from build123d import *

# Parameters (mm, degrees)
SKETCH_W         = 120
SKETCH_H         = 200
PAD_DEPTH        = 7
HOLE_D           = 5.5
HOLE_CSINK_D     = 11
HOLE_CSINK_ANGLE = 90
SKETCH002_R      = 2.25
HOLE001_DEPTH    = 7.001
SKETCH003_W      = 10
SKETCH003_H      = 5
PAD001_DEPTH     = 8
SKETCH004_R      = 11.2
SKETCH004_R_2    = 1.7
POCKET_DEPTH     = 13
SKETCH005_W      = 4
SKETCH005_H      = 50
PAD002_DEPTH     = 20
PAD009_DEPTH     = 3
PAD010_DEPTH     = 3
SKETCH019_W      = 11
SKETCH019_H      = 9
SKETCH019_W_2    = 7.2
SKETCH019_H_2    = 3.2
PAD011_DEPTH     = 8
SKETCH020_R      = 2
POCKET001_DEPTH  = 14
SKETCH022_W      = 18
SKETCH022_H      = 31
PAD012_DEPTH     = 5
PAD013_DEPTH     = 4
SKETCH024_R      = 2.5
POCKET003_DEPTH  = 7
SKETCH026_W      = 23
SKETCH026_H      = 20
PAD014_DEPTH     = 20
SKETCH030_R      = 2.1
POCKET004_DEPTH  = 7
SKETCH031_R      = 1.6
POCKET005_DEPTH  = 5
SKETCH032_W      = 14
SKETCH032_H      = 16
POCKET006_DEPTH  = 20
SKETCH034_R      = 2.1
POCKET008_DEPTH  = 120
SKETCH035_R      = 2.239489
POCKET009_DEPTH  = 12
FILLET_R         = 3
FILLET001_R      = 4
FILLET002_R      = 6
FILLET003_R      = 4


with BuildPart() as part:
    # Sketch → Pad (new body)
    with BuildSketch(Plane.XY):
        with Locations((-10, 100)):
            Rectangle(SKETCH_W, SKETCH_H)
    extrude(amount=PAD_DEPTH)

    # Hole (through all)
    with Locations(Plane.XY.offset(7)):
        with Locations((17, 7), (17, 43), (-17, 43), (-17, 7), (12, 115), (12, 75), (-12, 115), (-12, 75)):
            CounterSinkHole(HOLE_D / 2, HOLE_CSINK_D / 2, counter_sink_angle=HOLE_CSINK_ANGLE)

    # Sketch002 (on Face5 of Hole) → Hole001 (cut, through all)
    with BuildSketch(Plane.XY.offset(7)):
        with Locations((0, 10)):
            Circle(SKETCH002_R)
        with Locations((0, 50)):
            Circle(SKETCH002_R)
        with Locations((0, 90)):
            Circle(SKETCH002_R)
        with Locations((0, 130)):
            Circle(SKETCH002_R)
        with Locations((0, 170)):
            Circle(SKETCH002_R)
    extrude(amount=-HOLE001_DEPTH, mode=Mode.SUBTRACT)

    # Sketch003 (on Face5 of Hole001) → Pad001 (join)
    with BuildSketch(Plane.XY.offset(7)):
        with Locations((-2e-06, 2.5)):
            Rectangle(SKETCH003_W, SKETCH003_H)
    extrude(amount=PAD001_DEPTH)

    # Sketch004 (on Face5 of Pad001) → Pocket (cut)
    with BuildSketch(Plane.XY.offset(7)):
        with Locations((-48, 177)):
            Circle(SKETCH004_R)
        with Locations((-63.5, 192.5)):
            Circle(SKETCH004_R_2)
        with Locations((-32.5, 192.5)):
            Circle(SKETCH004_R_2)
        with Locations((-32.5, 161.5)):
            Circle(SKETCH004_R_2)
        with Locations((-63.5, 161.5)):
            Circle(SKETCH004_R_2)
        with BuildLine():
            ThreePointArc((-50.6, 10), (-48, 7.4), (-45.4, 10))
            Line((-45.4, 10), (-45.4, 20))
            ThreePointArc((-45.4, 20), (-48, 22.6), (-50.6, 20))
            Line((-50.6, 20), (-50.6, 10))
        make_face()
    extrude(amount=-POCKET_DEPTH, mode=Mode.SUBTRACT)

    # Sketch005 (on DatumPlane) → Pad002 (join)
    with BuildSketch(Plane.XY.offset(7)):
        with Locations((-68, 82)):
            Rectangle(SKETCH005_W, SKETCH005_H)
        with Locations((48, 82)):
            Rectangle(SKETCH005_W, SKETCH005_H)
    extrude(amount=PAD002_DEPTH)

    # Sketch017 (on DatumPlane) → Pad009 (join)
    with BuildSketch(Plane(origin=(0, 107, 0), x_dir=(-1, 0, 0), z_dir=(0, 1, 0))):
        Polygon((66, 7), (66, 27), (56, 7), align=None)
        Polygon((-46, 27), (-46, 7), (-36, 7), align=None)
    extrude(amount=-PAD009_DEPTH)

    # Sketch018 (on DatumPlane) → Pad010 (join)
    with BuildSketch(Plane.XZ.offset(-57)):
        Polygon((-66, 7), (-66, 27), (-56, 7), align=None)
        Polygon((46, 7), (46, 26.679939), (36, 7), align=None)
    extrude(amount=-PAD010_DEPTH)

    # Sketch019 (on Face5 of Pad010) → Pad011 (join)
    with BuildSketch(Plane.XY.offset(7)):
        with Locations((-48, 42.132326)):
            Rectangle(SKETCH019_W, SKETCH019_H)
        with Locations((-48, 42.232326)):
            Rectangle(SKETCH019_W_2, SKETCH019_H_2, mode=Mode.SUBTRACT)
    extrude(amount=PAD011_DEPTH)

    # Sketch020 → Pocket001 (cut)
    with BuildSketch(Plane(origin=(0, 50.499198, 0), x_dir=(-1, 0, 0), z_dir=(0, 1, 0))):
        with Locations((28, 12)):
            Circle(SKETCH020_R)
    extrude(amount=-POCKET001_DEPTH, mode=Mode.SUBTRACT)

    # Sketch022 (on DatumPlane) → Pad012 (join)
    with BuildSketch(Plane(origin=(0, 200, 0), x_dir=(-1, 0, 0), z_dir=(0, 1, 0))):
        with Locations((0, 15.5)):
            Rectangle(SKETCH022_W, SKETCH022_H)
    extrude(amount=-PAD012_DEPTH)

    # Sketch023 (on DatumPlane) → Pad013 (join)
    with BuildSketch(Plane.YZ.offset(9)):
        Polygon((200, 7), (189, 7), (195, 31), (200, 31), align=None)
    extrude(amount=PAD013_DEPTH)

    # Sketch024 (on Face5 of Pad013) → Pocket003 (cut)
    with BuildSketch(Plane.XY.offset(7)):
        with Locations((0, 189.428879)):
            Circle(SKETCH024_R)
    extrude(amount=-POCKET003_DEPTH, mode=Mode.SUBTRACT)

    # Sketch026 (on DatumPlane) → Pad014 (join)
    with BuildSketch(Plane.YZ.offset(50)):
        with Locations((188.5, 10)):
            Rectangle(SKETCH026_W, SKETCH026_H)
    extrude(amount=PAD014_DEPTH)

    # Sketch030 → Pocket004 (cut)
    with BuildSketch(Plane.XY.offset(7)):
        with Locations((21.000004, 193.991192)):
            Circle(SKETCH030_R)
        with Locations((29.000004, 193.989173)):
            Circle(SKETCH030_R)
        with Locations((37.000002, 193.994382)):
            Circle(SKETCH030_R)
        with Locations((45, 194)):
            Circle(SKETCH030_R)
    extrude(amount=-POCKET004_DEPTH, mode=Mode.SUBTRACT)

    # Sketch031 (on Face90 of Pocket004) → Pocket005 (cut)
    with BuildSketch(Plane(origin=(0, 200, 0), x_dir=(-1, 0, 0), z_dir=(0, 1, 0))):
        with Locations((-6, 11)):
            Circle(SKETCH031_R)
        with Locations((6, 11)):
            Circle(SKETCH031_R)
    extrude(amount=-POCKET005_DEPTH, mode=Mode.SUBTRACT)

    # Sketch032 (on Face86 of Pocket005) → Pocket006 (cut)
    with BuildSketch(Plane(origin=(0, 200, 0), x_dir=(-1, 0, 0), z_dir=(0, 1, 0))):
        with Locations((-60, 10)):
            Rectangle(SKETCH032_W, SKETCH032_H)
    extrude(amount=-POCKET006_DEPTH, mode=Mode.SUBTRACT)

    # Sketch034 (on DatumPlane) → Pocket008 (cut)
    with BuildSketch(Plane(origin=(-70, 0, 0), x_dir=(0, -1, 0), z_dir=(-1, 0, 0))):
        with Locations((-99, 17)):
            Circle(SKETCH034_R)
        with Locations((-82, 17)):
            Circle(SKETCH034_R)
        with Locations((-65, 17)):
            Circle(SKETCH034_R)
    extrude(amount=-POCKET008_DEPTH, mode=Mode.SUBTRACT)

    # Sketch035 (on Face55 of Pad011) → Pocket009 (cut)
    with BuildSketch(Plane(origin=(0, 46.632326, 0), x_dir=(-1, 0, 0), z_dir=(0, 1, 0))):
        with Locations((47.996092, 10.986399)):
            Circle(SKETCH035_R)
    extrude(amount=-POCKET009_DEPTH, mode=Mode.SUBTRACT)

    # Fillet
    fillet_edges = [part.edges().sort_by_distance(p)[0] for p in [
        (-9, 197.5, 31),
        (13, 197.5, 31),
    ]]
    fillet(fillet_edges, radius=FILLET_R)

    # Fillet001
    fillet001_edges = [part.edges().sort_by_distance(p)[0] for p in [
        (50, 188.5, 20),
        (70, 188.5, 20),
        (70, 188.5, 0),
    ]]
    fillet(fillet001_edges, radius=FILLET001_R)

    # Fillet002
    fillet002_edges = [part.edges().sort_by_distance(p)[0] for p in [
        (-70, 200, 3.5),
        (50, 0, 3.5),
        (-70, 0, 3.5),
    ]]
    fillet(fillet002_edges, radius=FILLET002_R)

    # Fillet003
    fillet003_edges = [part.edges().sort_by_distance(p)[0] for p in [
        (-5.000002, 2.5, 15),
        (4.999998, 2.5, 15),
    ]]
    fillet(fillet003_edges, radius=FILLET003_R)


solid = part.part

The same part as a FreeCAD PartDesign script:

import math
import FreeCAD as App
import Part
import Sketcher

V = App.Vector
Q = App.Units.Quantity


def edges_at(feature, points):
    """Names of the edges that pass closest to the given points."""
    edges = feature.Shape.Edges
    near = lambda p: min(range(len(edges)), key=lambda i: edges[i].distToShape(Part.Vertex(*p))[0])
    return sorted({f"Edge{near(p) + 1}" for p in points})

doc = App.newDocument("Part")
body = doc.addObject("PartDesign::Body", "Body")

# Sketch on XY plane
sketch1 = doc.addObject("Sketcher::SketchObject", "Sketch")
body.addObject(sketch1)
sketch1.AttachmentSupport = (doc.XY_Plane, [""])
sketch1.MapMode = "FlatFace"
sketch1.addGeometry(Part.LineSegment(V(-70, 200, 0), V(-70, 0, 0)), False)
sketch1.addGeometry(Part.LineSegment(V(-70, 0, 0), V(50, 0, 0)), False)
sketch1.addGeometry(Part.LineSegment(V(50, 0, 0), V(50, 200, 0)), False)
sketch1.addGeometry(Part.LineSegment(V(50, 200, 0), V(-70, 200, 0)), False)
sketch1.addConstraint(Sketcher.Constraint("Coincident", 0, 2, 1, 1))
sketch1.addConstraint(Sketcher.Constraint("Coincident", 1, 2, 2, 1))
sketch1.addConstraint(Sketcher.Constraint("Coincident", 2, 2, 3, 1))
sketch1.addConstraint(Sketcher.Constraint("Coincident", 3, 2, 0, 1))
sketch1.addConstraint(Sketcher.Constraint("Vertical", 0))
sketch1.addConstraint(Sketcher.Constraint("Horizontal", 1))
sketch1.addConstraint(Sketcher.Constraint("Vertical", 2))
sketch1.addConstraint(Sketcher.Constraint("Horizontal", 3))
sketch1.addConstraint(Sketcher.Constraint("PointOnObject", 0, 2, -1))
sketch1.addConstraint(Sketcher.Constraint("DistanceX", 1, 1, 1, 2, Q("120 mm")))
sketch1.addConstraint(Sketcher.Constraint("DistanceY", 0, 2, 0, 1, Q("200 mm")))
sketch1.addConstraint(Sketcher.Constraint("DistanceX", 0, 2, -1, 1, Q("70 mm")))
pad1 = doc.addObject("PartDesign::Pad", "Pad")
body.addObject(pad1)
pad1.Profile = sketch1
pad1.Length = 7

# Sketch on XY plane
sketch2 = doc.addObject("Sketcher::SketchObject", "Sketch001")
body.addObject(sketch2)
sketch2.AttachmentSupport = (doc.XY_Plane, [""])
sketch2.MapMode = "FlatFace"
sketch2.AttachmentOffset = App.Placement(V(0, 0, 7), App.Rotation())
sketch2.addGeometry(Part.Circle(V(17, 7, 0), V(0, 0, 1), 2.75), False)
sketch2.addGeometry(Part.Circle(V(17, 43, 0), V(0, 0, 1), 2.75), False)
sketch2.addGeometry(Part.Circle(V(-17, 43, 0), V(0, 0, 1), 2.75), False)
sketch2.addGeometry(Part.Circle(V(-17, 7, 0), V(0, 0, 1), 2.75), False)
sketch2.addGeometry(Part.Circle(V(12, 115, 0), V(0, 0, 1), 2.75), False)
sketch2.addGeometry(Part.Circle(V(12, 75, 0), V(0, 0, 1), 2.75), False)
sketch2.addGeometry(Part.Circle(V(-12, 115, 0), V(0, 0, 1), 2.75), False)
sketch2.addGeometry(Part.Circle(V(-12, 75, 0), V(0, 0, 1), 2.75), False)
sketch2.addConstraint(Sketcher.Constraint("Equal", 0, 1))
sketch2.addConstraint(Sketcher.Constraint("Equal", 1, 2))
sketch2.addConstraint(Sketcher.Constraint("Equal", 2, 3))
sketch2.addConstraint(Sketcher.Constraint("Equal", 3, 4))
sketch2.addConstraint(Sketcher.Constraint("Equal", 4, 5))
sketch2.addConstraint(Sketcher.Constraint("Equal", 5, 6))
sketch2.addConstraint(Sketcher.Constraint("Equal", 6, 7))
sketch2.addConstraint(Sketcher.Constraint("Symmetric", 1, 3, 2, 3, -2))
sketch2.addConstraint(Sketcher.Constraint("Symmetric", 0, 3, 3, 3, -2))
sketch2.addConstraint(Sketcher.Constraint("Symmetric", 4, 3, 6, 3, -2))
sketch2.addConstraint(Sketcher.Constraint("Symmetric", 5, 3, 7, 3, -2))
sketch2.addConstraint(Sketcher.Constraint("Vertical", 0, 3, 1, 3))
sketch2.addConstraint(Sketcher.Constraint("Vertical", 4, 3, 5, 3))
sketch2.addConstraint(Sketcher.Constraint("Diameter", 0, Q("5.5 mm")))
sketch2.addConstraint(Sketcher.Constraint("DistanceX", -1, 1, 0, 3, Q("17 mm")))
sketch2.addConstraint(Sketcher.Constraint("DistanceY", -1, 1, 0, 3, Q("7 mm")))
sketch2.addConstraint(Sketcher.Constraint("DistanceY", -1, 1, 1, 3, Q("43 mm")))
sketch2.addConstraint(Sketcher.Constraint("DistanceX", -1, 1, 4, 3, Q("12 mm")))
sketch2.addConstraint(Sketcher.Constraint("DistanceY", -1, 1, 4, 3, Q("115 mm")))
sketch2.addConstraint(Sketcher.Constraint("DistanceY", -1, 1, 5, 3, Q("75 mm")))
doc.recompute()
hole = doc.addObject("PartDesign::Hole", "Hole")
body.addObject(hole)
hole.Profile = sketch2
hole.ThreadType = "None"
hole.Diameter = 5.5
hole.DepthType = "ThroughAll"
hole.HoleCutType = "Countersink"
hole.HoleCutDiameter = 11
hole.HoleCutCountersinkAngle = 90

# Sketch on XY plane
sketch3 = doc.addObject("Sketcher::SketchObject", "Sketch002")
body.addObject(sketch3)
sketch3.AttachmentSupport = (doc.XY_Plane, [""])
sketch3.MapMode = "FlatFace"
sketch3.AttachmentOffset = App.Placement(V(0, 0, 7), App.Rotation())
sketch3.addGeometry(Part.Circle(V(0, 10, 0), V(0, 0, 1), 2.25), False)
sketch3.addGeometry(Part.Circle(V(0, 50, 0), V(0, 0, 1), 2.25), False)
sketch3.addGeometry(Part.Circle(V(0, 90, 0), V(0, 0, 1), 2.25), False)
sketch3.addGeometry(Part.Circle(V(0, 130, 0), V(0, 0, 1), 2.25), False)
sketch3.addGeometry(Part.Circle(V(0, 170, 0), V(0, 0, 1), 2.25), False)
sketch3.addConstraint(Sketcher.Constraint("Equal", 0, 1))
sketch3.addConstraint(Sketcher.Constraint("Equal", 1, 2))
sketch3.addConstraint(Sketcher.Constraint("Equal", 2, 3))
sketch3.addConstraint(Sketcher.Constraint("Equal", 3, 4))
sketch3.addConstraint(Sketcher.Constraint("PointOnObject", 0, 3, -2))
sketch3.addConstraint(Sketcher.Constraint("PointOnObject", 1, 3, -2))
sketch3.addConstraint(Sketcher.Constraint("PointOnObject", 2, 3, -2))
sketch3.addConstraint(Sketcher.Constraint("PointOnObject", 3, 3, -2))
sketch3.addConstraint(Sketcher.Constraint("PointOnObject", 4, 3, -2))
sketch3.addConstraint(Sketcher.Constraint("Diameter", 0, Q("4.5 mm")))
sketch3.addConstraint(Sketcher.Constraint("DistanceY", -1, 1, 0, 3, Q("10 mm")))
sketch3.addConstraint(Sketcher.Constraint("DistanceY", -1, 1, 1, 3, Q("50 mm")))
sketch3.addConstraint(Sketcher.Constraint("DistanceY", -1, 1, 2, 3, Q("90 mm")))
sketch3.addConstraint(Sketcher.Constraint("DistanceY", -1, 1, 3, 3, Q("130 mm")))
sketch3.addConstraint(Sketcher.Constraint("DistanceY", -1, 1, 4, 3, Q("170 mm")))
pocket1 = doc.addObject("PartDesign::Pocket", "Pocket")
body.addObject(pocket1)
pocket1.Profile = sketch3
pocket1.Type = "ThroughAll"

# Sketch on XY plane
sketch4 = doc.addObject("Sketcher::SketchObject", "Sketch003")
body.addObject(sketch4)
sketch4.AttachmentSupport = (doc.XY_Plane, [""])
sketch4.MapMode = "FlatFace"
sketch4.AttachmentOffset = App.Placement(V(0, 0, 7), App.Rotation())
sketch4.addGeometry(Part.LineSegment(V(-5.000002, 5, 0), V(-5.000002, 0, 0)), False)
sketch4.addGeometry(Part.LineSegment(V(-5.000002, 0, 0), V(4.999998, 0, 0)), False)
sketch4.addGeometry(Part.LineSegment(V(4.999998, 0, 0), V(4.999998, 5, 0)), False)
sketch4.addGeometry(Part.LineSegment(V(4.999998, 5, 0), V(-5.000002, 5, 0)), False)
sketch4.addConstraint(Sketcher.Constraint("Coincident", 0, 2, 1, 1))
sketch4.addConstraint(Sketcher.Constraint("Coincident", 1, 2, 2, 1))
sketch4.addConstraint(Sketcher.Constraint("Coincident", 2, 2, 3, 1))
sketch4.addConstraint(Sketcher.Constraint("Coincident", 3, 2, 0, 1))
sketch4.addConstraint(Sketcher.Constraint("Vertical", 0))
sketch4.addConstraint(Sketcher.Constraint("Horizontal", 1))
sketch4.addConstraint(Sketcher.Constraint("Vertical", 2))
sketch4.addConstraint(Sketcher.Constraint("Horizontal", 3))
sketch4.addConstraint(Sketcher.Constraint("Symmetric", 0, 2, 1, 2, -1, 1))
sketch4.addConstraint(Sketcher.Constraint("DistanceX", 1, 1, 1, 2, Q("10 mm")))
sketch4.addConstraint(Sketcher.Constraint("DistanceY", 0, 2, 0, 1, Q("5 mm")))
pad2 = doc.addObject("PartDesign::Pad", "Pad001")
body.addObject(pad2)
pad2.Profile = sketch4
pad2.Length = 8

# Sketch on XY plane
sketch5 = doc.addObject("Sketcher::SketchObject", "Sketch004")
body.addObject(sketch5)
sketch5.AttachmentSupport = (doc.XY_Plane, [""])
sketch5.MapMode = "FlatFace"
sketch5.AttachmentOffset = App.Placement(V(0, 0, 7), App.Rotation())
sketch5.addGeometry(Part.Circle(V(-48, 177, 0), V(0, 0, 1), 11.2), False)
sketch5.addGeometry(Part.Circle(V(-63.5, 192.5, 0), V(0, 0, 1), 1.7), False)
sketch5.addGeometry(Part.Circle(V(-32.5, 192.5, 0), V(0, 0, 1), 1.7), False)
sketch5.addGeometry(Part.Circle(V(-32.5, 161.5, 0), V(0, 0, 1), 1.7), False)
sketch5.addGeometry(Part.Circle(V(-63.5, 161.5, 0), V(0, 0, 1), 1.7), False)
sketch5.addGeometry(Part.ArcOfCircle(Part.Circle(V(-48, 10, 0), V(0, 0, 1), 2.6), math.radians(180), math.radians(360)), False)
sketch5.addGeometry(Part.LineSegment(V(-45.4, 10, 0), V(-45.4, 20, 0)), False)
sketch5.addGeometry(Part.ArcOfCircle(Part.Circle(V(-48, 20, 0), V(0, 0, 1), 2.6), math.radians(0), math.radians(180)), False)
sketch5.addGeometry(Part.LineSegment(V(-50.6, 20, 0), V(-50.6, 10, 0)), False)
sketch5.addConstraint(Sketcher.Constraint("Tangent", 5, 2, 6, 1))
sketch5.addConstraint(Sketcher.Constraint("Tangent", 6, 2, 7, 1))
sketch5.addConstraint(Sketcher.Constraint("Tangent", 7, 2, 8, 1))
sketch5.addConstraint(Sketcher.Constraint("Tangent", 8, 2, 5, 1))
sketch5.addConstraint(Sketcher.Constraint("Vertical", 6))
sketch5.addConstraint(Sketcher.Constraint("Vertical", 8))
sketch5.addConstraint(Sketcher.Constraint("Equal", 1, 2))
sketch5.addConstraint(Sketcher.Constraint("Equal", 2, 3))
sketch5.addConstraint(Sketcher.Constraint("Equal", 3, 4))
sketch5.addConstraint(Sketcher.Constraint("Horizontal", 1, 3, 2, 3))
sketch5.addConstraint(Sketcher.Constraint("Horizontal", 3, 3, 4, 3))
sketch5.addConstraint(Sketcher.Constraint("Vertical", 2, 3, 3, 3))
sketch5.addConstraint(Sketcher.Constraint("Vertical", 1, 3, 4, 3))
sketch5.addConstraint(Sketcher.Constraint("Vertical", 0, 3, 5, 3))
sketch5.addConstraint(Sketcher.Constraint("Diameter", 0, Q("22.4 mm")))
sketch5.addConstraint(Sketcher.Constraint("Diameter", 1, Q("3.4 mm")))
sketch5.addConstraint(Sketcher.Constraint("Radius", 5, Q("2.6 mm")))
sketch5.addConstraint(Sketcher.Constraint("DistanceY", 6, 1, 6, 2, Q("10 mm")))
sketch5.addConstraint(Sketcher.Constraint("DistanceX", 0, 3, -1, 1, Q("48 mm")))
sketch5.addConstraint(Sketcher.Constraint("DistanceY", -1, 1, 0, 3, Q("177 mm")))
sketch5.addConstraint(Sketcher.Constraint("DistanceY", -1, 1, 5, 3, Q("10 mm")))
sketch5.addConstraint(Sketcher.Constraint("DistanceX", 1, 3, 2, 3, Q("31 mm")))
sketch5.addConstraint(Sketcher.Constraint("DistanceY", 3, 3, 2, 3, Q("31 mm")))
sketch5.addConstraint(Sketcher.Constraint("DistanceX", 1, 3, -1, 1, Q("63.5 mm")))
sketch5.addConstraint(Sketcher.Constraint("DistanceY", -1, 1, 1, 3, Q("192.5 mm")))
pocket2 = doc.addObject("PartDesign::Pocket", "Pocket001")
body.addObject(pocket2)
pocket2.Profile = sketch5
pocket2.Length = 13

# Sketch on XY plane
sketch6 = doc.addObject("Sketcher::SketchObject", "Sketch005")
body.addObject(sketch6)
sketch6.AttachmentSupport = (doc.XY_Plane, [""])
sketch6.MapMode = "FlatFace"
sketch6.AttachmentOffset = App.Placement(V(0, 0, 7), App.Rotation())
sketch6.addGeometry(Part.LineSegment(V(-70, 107, 0), V(-70, 57, 0)), False)
sketch6.addGeometry(Part.LineSegment(V(-70, 57, 0), V(-66, 57, 0)), False)
sketch6.addGeometry(Part.LineSegment(V(-66, 57, 0), V(-66, 107, 0)), False)
sketch6.addGeometry(Part.LineSegment(V(-66, 107, 0), V(-70, 107, 0)), False)
sketch6.addGeometry(Part.LineSegment(V(46, 107, 0), V(46, 57, 0)), False)
sketch6.addGeometry(Part.LineSegment(V(46, 57, 0), V(50, 57, 0)), False)
sketch6.addGeometry(Part.LineSegment(V(50, 57, 0), V(50, 107, 0)), False)
sketch6.addGeometry(Part.LineSegment(V(50, 107, 0), V(46, 107, 0)), False)
sketch6.addConstraint(Sketcher.Constraint("Coincident", 0, 2, 1, 1))
sketch6.addConstraint(Sketcher.Constraint("Coincident", 1, 2, 2, 1))
sketch6.addConstraint(Sketcher.Constraint("Coincident", 2, 2, 3, 1))
sketch6.addConstraint(Sketcher.Constraint("Coincident", 3, 2, 0, 1))
sketch6.addConstraint(Sketcher.Constraint("Coincident", 4, 2, 5, 1))
sketch6.addConstraint(Sketcher.Constraint("Coincident", 5, 2, 6, 1))
sketch6.addConstraint(Sketcher.Constraint("Coincident", 6, 2, 7, 1))
sketch6.addConstraint(Sketcher.Constraint("Coincident", 7, 2, 4, 1))
sketch6.addConstraint(Sketcher.Constraint("Vertical", 0))
sketch6.addConstraint(Sketcher.Constraint("Horizontal", 1))
sketch6.addConstraint(Sketcher.Constraint("Vertical", 2))
sketch6.addConstraint(Sketcher.Constraint("Horizontal", 3))
sketch6.addConstraint(Sketcher.Constraint("Vertical", 4))
sketch6.addConstraint(Sketcher.Constraint("Horizontal", 5))
sketch6.addConstraint(Sketcher.Constraint("Vertical", 6))
sketch6.addConstraint(Sketcher.Constraint("Horizontal", 7))
sketch6.addConstraint(Sketcher.Constraint("Horizontal", 1, 2, 4, 2))
sketch6.addConstraint(Sketcher.Constraint("Horizontal", 3, 2, 6, 2))
sketch6.addConstraint(Sketcher.Constraint("Equal", 3, 5))
sketch6.addConstraint(Sketcher.Constraint("DistanceX", 1, 1, 1, 2, Q("4 mm")))
sketch6.addConstraint(Sketcher.Constraint("DistanceY", 0, 2, 0, 1, Q("50 mm")))
sketch6.addConstraint(Sketcher.Constraint("DistanceX", 0, 2, -1, 1, Q("70 mm")))
sketch6.addConstraint(Sketcher.Constraint("DistanceY", -1, 1, 0, 2, Q("57 mm")))
sketch6.addConstraint(Sketcher.Constraint("DistanceX", -1, 1, 4, 2, Q("46 mm")))
pad3 = doc.addObject("PartDesign::Pad", "Pad002")
body.addObject(pad3)
pad3.Profile = sketch6
pad3.Length = 20

# Sketch on XZ plane
sketch7 = doc.addObject("Sketcher::SketchObject", "Sketch006")
body.addObject(sketch7)
sketch7.AttachmentSupport = (doc.XZ_Plane, [""])
sketch7.MapMode = "FlatFace"
sketch7.AttachmentOffset = App.Placement(V(0, 0, -107), App.Rotation())
sketch7.addGeometry(Part.LineSegment(V(-66, 7, 0), V(-66, 27, 0)), False)
sketch7.addGeometry(Part.LineSegment(V(-66, 27, 0), V(-56, 7, 0)), False)
sketch7.addGeometry(Part.LineSegment(V(-56, 7, 0), V(-66, 7, 0)), False)
sketch7.addGeometry(Part.LineSegment(V(46, 27, 0), V(46, 7, 0)), False)
sketch7.addGeometry(Part.LineSegment(V(46, 7, 0), V(36, 7, 0)), False)
sketch7.addGeometry(Part.LineSegment(V(36, 7, 0), V(46, 27, 0)), False)
sketch7.addConstraint(Sketcher.Constraint("Coincident", 0, 2, 1, 1))
sketch7.addConstraint(Sketcher.Constraint("Coincident", 1, 2, 2, 1))
sketch7.addConstraint(Sketcher.Constraint("Coincident", 2, 2, 0, 1))
sketch7.addConstraint(Sketcher.Constraint("Coincident", 3, 2, 4, 1))
sketch7.addConstraint(Sketcher.Constraint("Coincident", 4, 2, 5, 1))
sketch7.addConstraint(Sketcher.Constraint("Coincident", 5, 2, 3, 1))
sketch7.addConstraint(Sketcher.Constraint("Vertical", 0))
sketch7.addConstraint(Sketcher.Constraint("Horizontal", 2))
sketch7.addConstraint(Sketcher.Constraint("Vertical", 3))
sketch7.addConstraint(Sketcher.Constraint("Horizontal", 4))
sketch7.addConstraint(Sketcher.Constraint("Horizontal", 2, 2, 3, 2))
sketch7.addConstraint(Sketcher.Constraint("Horizontal", 0, 2, 5, 2))
sketch7.addConstraint(Sketcher.Constraint("Equal", 2, 4))
sketch7.addConstraint(Sketcher.Constraint("DistanceX", 2, 2, 2, 1, Q("10 mm")))
sketch7.addConstraint(Sketcher.Constraint("DistanceY", 0, 1, 0, 2, Q("20 mm")))
sketch7.addConstraint(Sketcher.Constraint("DistanceX", 0, 2, -1, 1, Q("66 mm")))
sketch7.addConstraint(Sketcher.Constraint("DistanceY", -1, 1, 0, 2, Q("27 mm")))
sketch7.addConstraint(Sketcher.Constraint("DistanceX", -1, 1, 3, 2, Q("46 mm")))
pad4 = doc.addObject("PartDesign::Pad", "Pad003")
body.addObject(pad4)
pad4.Profile = sketch7
pad4.Length = 3

# Sketch on XZ plane
sketch8 = doc.addObject("Sketcher::SketchObject", "Sketch007")
body.addObject(sketch8)
sketch8.AttachmentSupport = (doc.XZ_Plane, [""])
sketch8.MapMode = "FlatFace"
sketch8.AttachmentOffset = App.Placement(V(0, 0, -57), App.Rotation())
sketch8.addGeometry(Part.LineSegment(V(-66, 27, 0), V(-66, 7, 0)), False)
sketch8.addGeometry(Part.LineSegment(V(-66, 7, 0), V(-56, 7, 0)), False)
sketch8.addGeometry(Part.LineSegment(V(-56, 7, 0), V(-66, 27, 0)), False)
sketch8.addGeometry(Part.LineSegment(V(46, 7, 0), V(46, 26.679939, 0)), False)
sketch8.addGeometry(Part.LineSegment(V(46, 26.679939, 0), V(36, 7, 0)), False)
sketch8.addGeometry(Part.LineSegment(V(36, 7, 0), V(46, 7, 0)), False)
sketch8.addConstraint(Sketcher.Constraint("Coincident", 0, 2, 1, 1))
sketch8.addConstraint(Sketcher.Constraint("Coincident", 1, 2, 2, 1))
sketch8.addConstraint(Sketcher.Constraint("Coincident", 2, 2, 0, 1))
sketch8.addConstraint(Sketcher.Constraint("Coincident", 3, 2, 4, 1))
sketch8.addConstraint(Sketcher.Constraint("Coincident", 4, 2, 5, 1))
sketch8.addConstraint(Sketcher.Constraint("Coincident", 5, 2, 3, 1))
sketch8.addConstraint(Sketcher.Constraint("Vertical", 0))
sketch8.addConstraint(Sketcher.Constraint("Horizontal", 1))
sketch8.addConstraint(Sketcher.Constraint("Vertical", 3))
sketch8.addConstraint(Sketcher.Constraint("Horizontal", 5))
sketch8.addConstraint(Sketcher.Constraint("Horizontal", 1, 2, 4, 2))
sketch8.addConstraint(Sketcher.Constraint("Equal", 1, 5))
sketch8.addConstraint(Sketcher.Constraint("DistanceX", 1, 1, 1, 2, Q("10 mm")))
sketch8.addConstraint(Sketcher.Constraint("DistanceY", 0, 2, 0, 1, Q("20 mm")))
sketch8.addConstraint(Sketcher.Constraint("DistanceX", 0, 2, -1, 1, Q("66 mm")))
sketch8.addConstraint(Sketcher.Constraint("DistanceY", -1, 1, 0, 2, Q("7 mm")))
sketch8.addConstraint(Sketcher.Constraint("DistanceX", -1, 1, 3, 2, Q("46 mm")))
sketch8.addConstraint(Sketcher.Constraint("DistanceY", 3, 1, 3, 2, Q("19.679939 mm")))
pad5 = doc.addObject("PartDesign::Pad", "Pad004")
body.addObject(pad5)
pad5.Profile = sketch8
pad5.Length = 3
pad5.Reversed = True

# Sketch on XY plane
sketch9 = doc.addObject("Sketcher::SketchObject", "Sketch008")
body.addObject(sketch9)
sketch9.AttachmentSupport = (doc.XY_Plane, [""])
sketch9.MapMode = "FlatFace"
sketch9.AttachmentOffset = App.Placement(V(0, 0, 7), App.Rotation())
sketch9.addGeometry(Part.LineSegment(V(-53.5, 46.632326, 0), V(-53.5, 37.632326, 0)), False)
sketch9.addGeometry(Part.LineSegment(V(-53.5, 37.632326, 0), V(-42.5, 37.632326, 0)), False)
sketch9.addGeometry(Part.LineSegment(V(-42.5, 37.632326, 0), V(-42.5, 46.632326, 0)), False)
sketch9.addGeometry(Part.LineSegment(V(-42.5, 46.632326, 0), V(-53.5, 46.632326, 0)), False)
sketch9.addGeometry(Part.LineSegment(V(-44.4, 40.632326, 0), V(-51.6, 40.632326, 0)), False)
sketch9.addGeometry(Part.LineSegment(V(-51.6, 40.632326, 0), V(-51.6, 43.832326, 0)), False)
sketch9.addGeometry(Part.LineSegment(V(-51.6, 43.832326, 0), V(-44.4, 43.832326, 0)), False)
sketch9.addGeometry(Part.LineSegment(V(-44.4, 43.832326, 0), V(-44.4, 40.632326, 0)), False)
sketch9.addConstraint(Sketcher.Constraint("Coincident", 0, 2, 1, 1))
sketch9.addConstraint(Sketcher.Constraint("Coincident", 1, 2, 2, 1))
sketch9.addConstraint(Sketcher.Constraint("Coincident", 2, 2, 3, 1))
sketch9.addConstraint(Sketcher.Constraint("Coincident", 3, 2, 0, 1))
sketch9.addConstraint(Sketcher.Constraint("Coincident", 4, 2, 5, 1))
sketch9.addConstraint(Sketcher.Constraint("Coincident", 5, 2, 6, 1))
sketch9.addConstraint(Sketcher.Constraint("Coincident", 6, 2, 7, 1))
sketch9.addConstraint(Sketcher.Constraint("Coincident", 7, 2, 4, 1))
sketch9.addConstraint(Sketcher.Constraint("Vertical", 0))
sketch9.addConstraint(Sketcher.Constraint("Horizontal", 1))
sketch9.addConstraint(Sketcher.Constraint("Vertical", 2))
sketch9.addConstraint(Sketcher.Constraint("Horizontal", 3))
sketch9.addConstraint(Sketcher.Constraint("Horizontal", 4))
sketch9.addConstraint(Sketcher.Constraint("Vertical", 5))
sketch9.addConstraint(Sketcher.Constraint("Horizontal", 6))
sketch9.addConstraint(Sketcher.Constraint("Vertical", 7))
sketch9.addConstraint(Sketcher.Constraint("DistanceX", 1, 1, 1, 2, Q("11 mm")))
sketch9.addConstraint(Sketcher.Constraint("DistanceY", 0, 2, 0, 1, Q("9 mm")))
sketch9.addConstraint(Sketcher.Constraint("DistanceX", 4, 2, 4, 1, Q("7.2 mm")))
sketch9.addConstraint(Sketcher.Constraint("DistanceY", 5, 1, 5, 2, Q("3.2 mm")))
sketch9.addConstraint(Sketcher.Constraint("DistanceY", 0, 2, 4, 2, Q("3 mm")))
sketch9.addConstraint(Sketcher.Constraint("DistanceX", 0, 2, -1, 1, Q("53.5 mm")))
sketch9.addConstraint(Sketcher.Constraint("DistanceX", 4, 2, -1, 1, Q("51.6 mm")))
sketch9.addConstraint(Sketcher.Constraint("DistanceY", -1, 1, 0, 2, Q("37.632326 mm")))
pad6 = doc.addObject("PartDesign::Pad", "Pad005")
body.addObject(pad6)
pad6.Profile = sketch9
pad6.Length = 8

# Sketch on XZ plane
sketch10 = doc.addObject("Sketcher::SketchObject", "Sketch009")
body.addObject(sketch10)
sketch10.AttachmentSupport = (doc.XZ_Plane, [""])
sketch10.MapMode = "FlatFace"
sketch10.AttachmentOffset = App.Placement(V(0, 0, -50.499198), App.Rotation())
sketch10.addGeometry(Part.Circle(V(-28, 12, 0), V(0, 0, 1), 2), False)
sketch10.addConstraint(Sketcher.Constraint("Diameter", 0, Q("4 mm")))
sketch10.addConstraint(Sketcher.Constraint("DistanceX", 0, 3, -1, 1, Q("28 mm")))
sketch10.addConstraint(Sketcher.Constraint("DistanceY", -1, 1, 0, 3, Q("12 mm")))
pocket3 = doc.addObject("PartDesign::Pocket", "Pocket002")
body.addObject(pocket3)
pocket3.Profile = sketch10
pocket3.Length = 14
pocket3.Reversed = True

# Sketch on XZ plane
sketch11 = doc.addObject("Sketcher::SketchObject", "Sketch010")
body.addObject(sketch11)
sketch11.AttachmentSupport = (doc.XZ_Plane, [""])
sketch11.MapMode = "FlatFace"
sketch11.AttachmentOffset = App.Placement(V(0, 0, -200), App.Rotation())
sketch11.addGeometry(Part.LineSegment(V(9, 31, 0), V(9, 0, 0)), False)
sketch11.addGeometry(Part.LineSegment(V(9, 0, 0), V(-9, 0, 0)), False)
sketch11.addGeometry(Part.LineSegment(V(-9, 0, 0), V(-9, 31, 0)), False)
sketch11.addGeometry(Part.LineSegment(V(-9, 31, 0), V(9, 31, 0)), False)
sketch11.addConstraint(Sketcher.Constraint("Coincident", 0, 2, 1, 1))
sketch11.addConstraint(Sketcher.Constraint("Coincident", 1, 2, 2, 1))
sketch11.addConstraint(Sketcher.Constraint("Coincident", 2, 2, 3, 1))
sketch11.addConstraint(Sketcher.Constraint("Coincident", 3, 2, 0, 1))
sketch11.addConstraint(Sketcher.Constraint("Vertical", 0))
sketch11.addConstraint(Sketcher.Constraint("Horizontal", 1))
sketch11.addConstraint(Sketcher.Constraint("Vertical", 2))
sketch11.addConstraint(Sketcher.Constraint("Horizontal", 3))
sketch11.addConstraint(Sketcher.Constraint("Symmetric", 0, 2, 1, 2, -1, 1))
sketch11.addConstraint(Sketcher.Constraint("DistanceX", 1, 2, 1, 1, Q("18 mm")))
sketch11.addConstraint(Sketcher.Constraint("DistanceY", 0, 2, 0, 1, Q("31 mm")))
pad7 = doc.addObject("PartDesign::Pad", "Pad006")
body.addObject(pad7)
pad7.Profile = sketch11
pad7.Length = 5

# Sketch on YZ plane
sketch12 = doc.addObject("Sketcher::SketchObject", "Sketch011")
body.addObject(sketch12)
sketch12.AttachmentSupport = (doc.YZ_Plane, [""])
sketch12.MapMode = "FlatFace"
sketch12.AttachmentOffset = App.Placement(V(0, 0, 9), App.Rotation())
sketch12.addGeometry(Part.LineSegment(V(189, 7, 0), V(200, 7, 0)), False)
sketch12.addGeometry(Part.LineSegment(V(200, 7, 0), V(200, 31, 0)), False)
sketch12.addGeometry(Part.LineSegment(V(200, 31, 0), V(195, 31, 0)), False)
sketch12.addGeometry(Part.LineSegment(V(195, 31, 0), V(189, 7, 0)), False)
sketch12.addConstraint(Sketcher.Constraint("Coincident", 0, 2, 1, 1))
sketch12.addConstraint(Sketcher.Constraint("Coincident", 1, 2, 2, 1))
sketch12.addConstraint(Sketcher.Constraint("Coincident", 2, 2, 3, 1))
sketch12.addConstraint(Sketcher.Constraint("Coincident", 3, 2, 0, 1))
sketch12.addConstraint(Sketcher.Constraint("Horizontal", 0))
sketch12.addConstraint(Sketcher.Constraint("Vertical", 1))
sketch12.addConstraint(Sketcher.Constraint("Horizontal", 2))
sketch12.addConstraint(Sketcher.Constraint("DistanceX", 0, 1, 0, 2, Q("11 mm")))
sketch12.addConstraint(Sketcher.Constraint("DistanceX", 2, 2, 2, 1, Q("5 mm")))
sketch12.addConstraint(Sketcher.Constraint("DistanceY", 1, 1, 1, 2, Q("24 mm")))
sketch12.addConstraint(Sketcher.Constraint("DistanceX", -1, 1, 0, 2, Q("200 mm")))
sketch12.addConstraint(Sketcher.Constraint("DistanceY", -1, 1, 0, 2, Q("7 mm")))
pad8 = doc.addObject("PartDesign::Pad", "Pad007")
body.addObject(pad8)
pad8.Profile = sketch12
pad8.Length = 4

# Sketch on XY plane
sketch13 = doc.addObject("Sketcher::SketchObject", "Sketch012")
body.addObject(sketch13)
sketch13.AttachmentSupport = (doc.XY_Plane, [""])
sketch13.MapMode = "FlatFace"
sketch13.AttachmentOffset = App.Placement(V(0, 0, 7), App.Rotation())
sketch13.addGeometry(Part.Circle(V(0, 189.428879, 0), V(0, 0, 1), 2.5), False)
sketch13.addConstraint(Sketcher.Constraint("PointOnObject", 0, 3, -2))
sketch13.addConstraint(Sketcher.Constraint("Diameter", 0, Q("5 mm")))
sketch13.addConstraint(Sketcher.Constraint("DistanceY", -1, 1, 0, 3, Q("189.428879 mm")))
pocket4 = doc.addObject("PartDesign::Pocket", "Pocket003")
body.addObject(pocket4)
pocket4.Profile = sketch13
pocket4.Length = 7

# Sketch on YZ plane
sketch14 = doc.addObject("Sketcher::SketchObject", "Sketch013")
body.addObject(sketch14)
sketch14.AttachmentSupport = (doc.YZ_Plane, [""])
sketch14.MapMode = "FlatFace"
sketch14.AttachmentOffset = App.Placement(V(0, 0, 50), App.Rotation())
sketch14.addGeometry(Part.LineSegment(V(177, 20, 0), V(177, 0, 0)), False)
sketch14.addGeometry(Part.LineSegment(V(177, 0, 0), V(200, 0, 0)), False)
sketch14.addGeometry(Part.LineSegment(V(200, 0, 0), V(200, 20, 0)), False)
sketch14.addGeometry(Part.LineSegment(V(200, 20, 0), V(177, 20, 0)), False)
sketch14.addConstraint(Sketcher.Constraint("Coincident", 0, 2, 1, 1))
sketch14.addConstraint(Sketcher.Constraint("Coincident", 1, 2, 2, 1))
sketch14.addConstraint(Sketcher.Constraint("Coincident", 2, 2, 3, 1))
sketch14.addConstraint(Sketcher.Constraint("Coincident", 3, 2, 0, 1))
sketch14.addConstraint(Sketcher.Constraint("Vertical", 0))
sketch14.addConstraint(Sketcher.Constraint("Horizontal", 1))
sketch14.addConstraint(Sketcher.Constraint("Vertical", 2))
sketch14.addConstraint(Sketcher.Constraint("Horizontal", 3))
sketch14.addConstraint(Sketcher.Constraint("PointOnObject", 0, 2, -1))
sketch14.addConstraint(Sketcher.Constraint("DistanceX", 1, 1, 1, 2, Q("23 mm")))
sketch14.addConstraint(Sketcher.Constraint("DistanceY", 0, 2, 0, 1, Q("20 mm")))
sketch14.addConstraint(Sketcher.Constraint("DistanceX", -1, 1, 0, 2, Q("177 mm")))
pad9 = doc.addObject("PartDesign::Pad", "Pad008")
body.addObject(pad9)
pad9.Profile = sketch14
pad9.Length = 20

# Sketch on XY plane
sketch15 = doc.addObject("Sketcher::SketchObject", "Sketch014")
body.addObject(sketch15)
sketch15.AttachmentSupport = (doc.XY_Plane, [""])
sketch15.MapMode = "FlatFace"
sketch15.AttachmentOffset = App.Placement(V(0, 0, 7), App.Rotation())
sketch15.addGeometry(Part.Circle(V(21.000004, 193.991192, 0), V(0, 0, 1), 2.1), False)
sketch15.addGeometry(Part.Circle(V(29.000004, 193.989173, 0), V(0, 0, 1), 2.1), False)
sketch15.addGeometry(Part.Circle(V(37.000002, 193.994382, 0), V(0, 0, 1), 2.1), False)
sketch15.addGeometry(Part.Circle(V(45, 194, 0), V(0, 0, 1), 2.1), False)
sketch15.addConstraint(Sketcher.Constraint("Equal", 0, 1))
sketch15.addConstraint(Sketcher.Constraint("Equal", 1, 2))
sketch15.addConstraint(Sketcher.Constraint("Equal", 2, 3))
sketch15.addConstraint(Sketcher.Constraint("Diameter", 0, Q("4.2 mm")))
sketch15.addConstraint(Sketcher.Constraint("DistanceX", -1, 1, 3, 3, Q("45 mm")))
sketch15.addConstraint(Sketcher.Constraint("DistanceY", -1, 1, 3, 3, Q("194 mm")))
sketch15.addConstraint(Sketcher.Constraint("DistanceX", 0, 3, 1, 3, Q("8 mm")))
sketch15.addConstraint(Sketcher.Constraint("DistanceX", 1, 3, 2, 3, Q("7.999998 mm")))
sketch15.addConstraint(Sketcher.Constraint("DistanceY", -1, 1, 2, 3, Q("193.994382 mm")))
sketch15.addConstraint(Sketcher.Constraint("DistanceY", 1, 3, 0, 3, Q("0.002019 mm")))
sketch15.addConstraint(Sketcher.Constraint("DistanceY", 1, 3, 2, 3, Q("0.005209 mm")))
sketch15.addConstraint(Sketcher.Constraint("DistanceX", -1, 1, 0, 3, Q("21.000004 mm")))
pocket5 = doc.addObject("PartDesign::Pocket", "Pocket004")
body.addObject(pocket5)
pocket5.Profile = sketch15
pocket5.Length = 7

# Sketch on XZ plane
sketch16 = doc.addObject("Sketcher::SketchObject", "Sketch015")
body.addObject(sketch16)
sketch16.AttachmentSupport = (doc.XZ_Plane, [""])
sketch16.MapMode = "FlatFace"
sketch16.AttachmentOffset = App.Placement(V(0, 0, -200), App.Rotation())
sketch16.addGeometry(Part.Circle(V(6, 11, 0), V(0, 0, 1), 1.6), False)
sketch16.addGeometry(Part.Circle(V(-6, 11, 0), V(0, 0, 1), 1.6), False)
sketch16.addConstraint(Sketcher.Constraint("Equal", 0, 1))
sketch16.addConstraint(Sketcher.Constraint("Symmetric", 0, 3, 1, 3, -2))
sketch16.addConstraint(Sketcher.Constraint("Diameter", 0, Q("3.2 mm")))
sketch16.addConstraint(Sketcher.Constraint("DistanceX", -1, 1, 0, 3, Q("6 mm")))
sketch16.addConstraint(Sketcher.Constraint("DistanceY", -1, 1, 0, 3, Q("11 mm")))
pocket6 = doc.addObject("PartDesign::Pocket", "Pocket005")
body.addObject(pocket6)
pocket6.Profile = sketch16
pocket6.Length = 5
pocket6.Reversed = True

# Sketch on XZ plane
sketch17 = doc.addObject("Sketcher::SketchObject", "Sketch016")
body.addObject(sketch17)
sketch17.AttachmentSupport = (doc.XZ_Plane, [""])
sketch17.MapMode = "FlatFace"
sketch17.AttachmentOffset = App.Placement(V(0, 0, -200), App.Rotation())
sketch17.addGeometry(Part.LineSegment(V(67, 18, 0), V(67, 2, 0)), False)
sketch17.addGeometry(Part.LineSegment(V(67, 2, 0), V(53, 2, 0)), False)
sketch17.addGeometry(Part.LineSegment(V(53, 2, 0), V(53, 18, 0)), False)
sketch17.addGeometry(Part.LineSegment(V(53, 18, 0), V(67, 18, 0)), False)
sketch17.addConstraint(Sketcher.Constraint("Coincident", 0, 2, 1, 1))
sketch17.addConstraint(Sketcher.Constraint("Coincident", 1, 2, 2, 1))
sketch17.addConstraint(Sketcher.Constraint("Coincident", 2, 2, 3, 1))
sketch17.addConstraint(Sketcher.Constraint("Coincident", 3, 2, 0, 1))
sketch17.addConstraint(Sketcher.Constraint("Vertical", 0))
sketch17.addConstraint(Sketcher.Constraint("Horizontal", 1))
sketch17.addConstraint(Sketcher.Constraint("Vertical", 2))
sketch17.addConstraint(Sketcher.Constraint("Horizontal", 3))
sketch17.addConstraint(Sketcher.Constraint("DistanceX", 1, 2, 1, 1, Q("14 mm")))
sketch17.addConstraint(Sketcher.Constraint("DistanceY", 0, 2, 0, 1, Q("16 mm")))
sketch17.addConstraint(Sketcher.Constraint("DistanceX", -1, 1, 0, 2, Q("67 mm")))
sketch17.addConstraint(Sketcher.Constraint("DistanceY", -1, 1, 0, 2, Q("2 mm")))
pocket7 = doc.addObject("PartDesign::Pocket", "Pocket006")
body.addObject(pocket7)
pocket7.Profile = sketch17
pocket7.Length = 20
pocket7.Reversed = True

# Sketch on YZ plane
sketch18 = doc.addObject("Sketcher::SketchObject", "Sketch017")
body.addObject(sketch18)
sketch18.AttachmentSupport = (doc.YZ_Plane, [""])
sketch18.MapMode = "FlatFace"
sketch18.AttachmentOffset = App.Placement(V(0, 0, -70), App.Rotation())
sketch18.addGeometry(Part.Circle(V(99, 17, 0), V(0, 0, 1), 2.1), False)
sketch18.addGeometry(Part.Circle(V(82, 17, 0), V(0, 0, 1), 2.1), False)
sketch18.addGeometry(Part.Circle(V(65, 17, 0), V(0, 0, 1), 2.1), False)
sketch18.addConstraint(Sketcher.Constraint("Equal", 0, 1))
sketch18.addConstraint(Sketcher.Constraint("Equal", 1, 2))
sketch18.addConstraint(Sketcher.Constraint("Horizontal", 0, 3, 1, 3))
sketch18.addConstraint(Sketcher.Constraint("Horizontal", 1, 3, 2, 3))
sketch18.addConstraint(Sketcher.Constraint("Diameter", 0, Q("4.2 mm")))
sketch18.addConstraint(Sketcher.Constraint("DistanceX", -1, 1, 0, 3, Q("99 mm")))
sketch18.addConstraint(Sketcher.Constraint("DistanceY", -1, 1, 0, 3, Q("17 mm")))
sketch18.addConstraint(Sketcher.Constraint("DistanceX", -1, 1, 1, 3, Q("82 mm")))
sketch18.addConstraint(Sketcher.Constraint("DistanceX", -1, 1, 2, 3, Q("65 mm")))
pocket8 = doc.addObject("PartDesign::Pocket", "Pocket007")
body.addObject(pocket8)
pocket8.Profile = sketch18
pocket8.Length = 120
pocket8.Reversed = True

# Sketch on XZ plane
sketch19 = doc.addObject("Sketcher::SketchObject", "Sketch018")
body.addObject(sketch19)
sketch19.AttachmentSupport = (doc.XZ_Plane, [""])
sketch19.MapMode = "FlatFace"
sketch19.AttachmentOffset = App.Placement(V(0, 0, -46.632326), App.Rotation())
sketch19.addGeometry(Part.Circle(V(-47.996092, 10.986399, 0), V(0, 0, 1), 2.239489), False)
sketch19.addConstraint(Sketcher.Constraint("Diameter", 0, Q("4.478978 mm")))
sketch19.addConstraint(Sketcher.Constraint("DistanceY", -1, 1, 0, 3, Q("10.986399 mm")))
sketch19.addConstraint(Sketcher.Constraint("DistanceX", 0, 3, -1, 1, Q("47.996092 mm")))
pocket9 = doc.addObject("PartDesign::Pocket", "Pocket008")
body.addObject(pocket9)
pocket9.Profile = sketch19
pocket9.Length = 12
pocket9.Reversed = True
doc.recompute()

fillet = doc.addObject("PartDesign::Fillet", "Fillet")
body.addObject(fillet)
fillet.Base = (pocket9, edges_at(pocket9, [(-9, 197.5, 31), (13, 197.5, 31)]))
fillet.Radius = 3
doc.recompute()

fillet2 = doc.addObject("PartDesign::Fillet", "Fillet001")
body.addObject(fillet2)
fillet2.Base = (fillet, edges_at(fillet, [(50, 188.5, 20), (70, 188.5, 20), (70, 188.5, 0)]))
fillet2.Radius = 4
doc.recompute()

fillet3 = doc.addObject("PartDesign::Fillet", "Fillet002")
body.addObject(fillet3)
fillet3.Base = (fillet2, edges_at(fillet2, [(-70, 200, 3.5), (50, 0, 3.5), (-70, 0, 3.5)]))
fillet3.Radius = 6
doc.recompute()

fillet4 = doc.addObject("PartDesign::Fillet", "Fillet003")
body.addObject(fillet4)
fillet4.Base = (fillet3, edges_at(fillet3, [(-5, 2.5, 15), (5, 2.5, 15)]))
fillet4.Radius = 4

doc.recompute()
